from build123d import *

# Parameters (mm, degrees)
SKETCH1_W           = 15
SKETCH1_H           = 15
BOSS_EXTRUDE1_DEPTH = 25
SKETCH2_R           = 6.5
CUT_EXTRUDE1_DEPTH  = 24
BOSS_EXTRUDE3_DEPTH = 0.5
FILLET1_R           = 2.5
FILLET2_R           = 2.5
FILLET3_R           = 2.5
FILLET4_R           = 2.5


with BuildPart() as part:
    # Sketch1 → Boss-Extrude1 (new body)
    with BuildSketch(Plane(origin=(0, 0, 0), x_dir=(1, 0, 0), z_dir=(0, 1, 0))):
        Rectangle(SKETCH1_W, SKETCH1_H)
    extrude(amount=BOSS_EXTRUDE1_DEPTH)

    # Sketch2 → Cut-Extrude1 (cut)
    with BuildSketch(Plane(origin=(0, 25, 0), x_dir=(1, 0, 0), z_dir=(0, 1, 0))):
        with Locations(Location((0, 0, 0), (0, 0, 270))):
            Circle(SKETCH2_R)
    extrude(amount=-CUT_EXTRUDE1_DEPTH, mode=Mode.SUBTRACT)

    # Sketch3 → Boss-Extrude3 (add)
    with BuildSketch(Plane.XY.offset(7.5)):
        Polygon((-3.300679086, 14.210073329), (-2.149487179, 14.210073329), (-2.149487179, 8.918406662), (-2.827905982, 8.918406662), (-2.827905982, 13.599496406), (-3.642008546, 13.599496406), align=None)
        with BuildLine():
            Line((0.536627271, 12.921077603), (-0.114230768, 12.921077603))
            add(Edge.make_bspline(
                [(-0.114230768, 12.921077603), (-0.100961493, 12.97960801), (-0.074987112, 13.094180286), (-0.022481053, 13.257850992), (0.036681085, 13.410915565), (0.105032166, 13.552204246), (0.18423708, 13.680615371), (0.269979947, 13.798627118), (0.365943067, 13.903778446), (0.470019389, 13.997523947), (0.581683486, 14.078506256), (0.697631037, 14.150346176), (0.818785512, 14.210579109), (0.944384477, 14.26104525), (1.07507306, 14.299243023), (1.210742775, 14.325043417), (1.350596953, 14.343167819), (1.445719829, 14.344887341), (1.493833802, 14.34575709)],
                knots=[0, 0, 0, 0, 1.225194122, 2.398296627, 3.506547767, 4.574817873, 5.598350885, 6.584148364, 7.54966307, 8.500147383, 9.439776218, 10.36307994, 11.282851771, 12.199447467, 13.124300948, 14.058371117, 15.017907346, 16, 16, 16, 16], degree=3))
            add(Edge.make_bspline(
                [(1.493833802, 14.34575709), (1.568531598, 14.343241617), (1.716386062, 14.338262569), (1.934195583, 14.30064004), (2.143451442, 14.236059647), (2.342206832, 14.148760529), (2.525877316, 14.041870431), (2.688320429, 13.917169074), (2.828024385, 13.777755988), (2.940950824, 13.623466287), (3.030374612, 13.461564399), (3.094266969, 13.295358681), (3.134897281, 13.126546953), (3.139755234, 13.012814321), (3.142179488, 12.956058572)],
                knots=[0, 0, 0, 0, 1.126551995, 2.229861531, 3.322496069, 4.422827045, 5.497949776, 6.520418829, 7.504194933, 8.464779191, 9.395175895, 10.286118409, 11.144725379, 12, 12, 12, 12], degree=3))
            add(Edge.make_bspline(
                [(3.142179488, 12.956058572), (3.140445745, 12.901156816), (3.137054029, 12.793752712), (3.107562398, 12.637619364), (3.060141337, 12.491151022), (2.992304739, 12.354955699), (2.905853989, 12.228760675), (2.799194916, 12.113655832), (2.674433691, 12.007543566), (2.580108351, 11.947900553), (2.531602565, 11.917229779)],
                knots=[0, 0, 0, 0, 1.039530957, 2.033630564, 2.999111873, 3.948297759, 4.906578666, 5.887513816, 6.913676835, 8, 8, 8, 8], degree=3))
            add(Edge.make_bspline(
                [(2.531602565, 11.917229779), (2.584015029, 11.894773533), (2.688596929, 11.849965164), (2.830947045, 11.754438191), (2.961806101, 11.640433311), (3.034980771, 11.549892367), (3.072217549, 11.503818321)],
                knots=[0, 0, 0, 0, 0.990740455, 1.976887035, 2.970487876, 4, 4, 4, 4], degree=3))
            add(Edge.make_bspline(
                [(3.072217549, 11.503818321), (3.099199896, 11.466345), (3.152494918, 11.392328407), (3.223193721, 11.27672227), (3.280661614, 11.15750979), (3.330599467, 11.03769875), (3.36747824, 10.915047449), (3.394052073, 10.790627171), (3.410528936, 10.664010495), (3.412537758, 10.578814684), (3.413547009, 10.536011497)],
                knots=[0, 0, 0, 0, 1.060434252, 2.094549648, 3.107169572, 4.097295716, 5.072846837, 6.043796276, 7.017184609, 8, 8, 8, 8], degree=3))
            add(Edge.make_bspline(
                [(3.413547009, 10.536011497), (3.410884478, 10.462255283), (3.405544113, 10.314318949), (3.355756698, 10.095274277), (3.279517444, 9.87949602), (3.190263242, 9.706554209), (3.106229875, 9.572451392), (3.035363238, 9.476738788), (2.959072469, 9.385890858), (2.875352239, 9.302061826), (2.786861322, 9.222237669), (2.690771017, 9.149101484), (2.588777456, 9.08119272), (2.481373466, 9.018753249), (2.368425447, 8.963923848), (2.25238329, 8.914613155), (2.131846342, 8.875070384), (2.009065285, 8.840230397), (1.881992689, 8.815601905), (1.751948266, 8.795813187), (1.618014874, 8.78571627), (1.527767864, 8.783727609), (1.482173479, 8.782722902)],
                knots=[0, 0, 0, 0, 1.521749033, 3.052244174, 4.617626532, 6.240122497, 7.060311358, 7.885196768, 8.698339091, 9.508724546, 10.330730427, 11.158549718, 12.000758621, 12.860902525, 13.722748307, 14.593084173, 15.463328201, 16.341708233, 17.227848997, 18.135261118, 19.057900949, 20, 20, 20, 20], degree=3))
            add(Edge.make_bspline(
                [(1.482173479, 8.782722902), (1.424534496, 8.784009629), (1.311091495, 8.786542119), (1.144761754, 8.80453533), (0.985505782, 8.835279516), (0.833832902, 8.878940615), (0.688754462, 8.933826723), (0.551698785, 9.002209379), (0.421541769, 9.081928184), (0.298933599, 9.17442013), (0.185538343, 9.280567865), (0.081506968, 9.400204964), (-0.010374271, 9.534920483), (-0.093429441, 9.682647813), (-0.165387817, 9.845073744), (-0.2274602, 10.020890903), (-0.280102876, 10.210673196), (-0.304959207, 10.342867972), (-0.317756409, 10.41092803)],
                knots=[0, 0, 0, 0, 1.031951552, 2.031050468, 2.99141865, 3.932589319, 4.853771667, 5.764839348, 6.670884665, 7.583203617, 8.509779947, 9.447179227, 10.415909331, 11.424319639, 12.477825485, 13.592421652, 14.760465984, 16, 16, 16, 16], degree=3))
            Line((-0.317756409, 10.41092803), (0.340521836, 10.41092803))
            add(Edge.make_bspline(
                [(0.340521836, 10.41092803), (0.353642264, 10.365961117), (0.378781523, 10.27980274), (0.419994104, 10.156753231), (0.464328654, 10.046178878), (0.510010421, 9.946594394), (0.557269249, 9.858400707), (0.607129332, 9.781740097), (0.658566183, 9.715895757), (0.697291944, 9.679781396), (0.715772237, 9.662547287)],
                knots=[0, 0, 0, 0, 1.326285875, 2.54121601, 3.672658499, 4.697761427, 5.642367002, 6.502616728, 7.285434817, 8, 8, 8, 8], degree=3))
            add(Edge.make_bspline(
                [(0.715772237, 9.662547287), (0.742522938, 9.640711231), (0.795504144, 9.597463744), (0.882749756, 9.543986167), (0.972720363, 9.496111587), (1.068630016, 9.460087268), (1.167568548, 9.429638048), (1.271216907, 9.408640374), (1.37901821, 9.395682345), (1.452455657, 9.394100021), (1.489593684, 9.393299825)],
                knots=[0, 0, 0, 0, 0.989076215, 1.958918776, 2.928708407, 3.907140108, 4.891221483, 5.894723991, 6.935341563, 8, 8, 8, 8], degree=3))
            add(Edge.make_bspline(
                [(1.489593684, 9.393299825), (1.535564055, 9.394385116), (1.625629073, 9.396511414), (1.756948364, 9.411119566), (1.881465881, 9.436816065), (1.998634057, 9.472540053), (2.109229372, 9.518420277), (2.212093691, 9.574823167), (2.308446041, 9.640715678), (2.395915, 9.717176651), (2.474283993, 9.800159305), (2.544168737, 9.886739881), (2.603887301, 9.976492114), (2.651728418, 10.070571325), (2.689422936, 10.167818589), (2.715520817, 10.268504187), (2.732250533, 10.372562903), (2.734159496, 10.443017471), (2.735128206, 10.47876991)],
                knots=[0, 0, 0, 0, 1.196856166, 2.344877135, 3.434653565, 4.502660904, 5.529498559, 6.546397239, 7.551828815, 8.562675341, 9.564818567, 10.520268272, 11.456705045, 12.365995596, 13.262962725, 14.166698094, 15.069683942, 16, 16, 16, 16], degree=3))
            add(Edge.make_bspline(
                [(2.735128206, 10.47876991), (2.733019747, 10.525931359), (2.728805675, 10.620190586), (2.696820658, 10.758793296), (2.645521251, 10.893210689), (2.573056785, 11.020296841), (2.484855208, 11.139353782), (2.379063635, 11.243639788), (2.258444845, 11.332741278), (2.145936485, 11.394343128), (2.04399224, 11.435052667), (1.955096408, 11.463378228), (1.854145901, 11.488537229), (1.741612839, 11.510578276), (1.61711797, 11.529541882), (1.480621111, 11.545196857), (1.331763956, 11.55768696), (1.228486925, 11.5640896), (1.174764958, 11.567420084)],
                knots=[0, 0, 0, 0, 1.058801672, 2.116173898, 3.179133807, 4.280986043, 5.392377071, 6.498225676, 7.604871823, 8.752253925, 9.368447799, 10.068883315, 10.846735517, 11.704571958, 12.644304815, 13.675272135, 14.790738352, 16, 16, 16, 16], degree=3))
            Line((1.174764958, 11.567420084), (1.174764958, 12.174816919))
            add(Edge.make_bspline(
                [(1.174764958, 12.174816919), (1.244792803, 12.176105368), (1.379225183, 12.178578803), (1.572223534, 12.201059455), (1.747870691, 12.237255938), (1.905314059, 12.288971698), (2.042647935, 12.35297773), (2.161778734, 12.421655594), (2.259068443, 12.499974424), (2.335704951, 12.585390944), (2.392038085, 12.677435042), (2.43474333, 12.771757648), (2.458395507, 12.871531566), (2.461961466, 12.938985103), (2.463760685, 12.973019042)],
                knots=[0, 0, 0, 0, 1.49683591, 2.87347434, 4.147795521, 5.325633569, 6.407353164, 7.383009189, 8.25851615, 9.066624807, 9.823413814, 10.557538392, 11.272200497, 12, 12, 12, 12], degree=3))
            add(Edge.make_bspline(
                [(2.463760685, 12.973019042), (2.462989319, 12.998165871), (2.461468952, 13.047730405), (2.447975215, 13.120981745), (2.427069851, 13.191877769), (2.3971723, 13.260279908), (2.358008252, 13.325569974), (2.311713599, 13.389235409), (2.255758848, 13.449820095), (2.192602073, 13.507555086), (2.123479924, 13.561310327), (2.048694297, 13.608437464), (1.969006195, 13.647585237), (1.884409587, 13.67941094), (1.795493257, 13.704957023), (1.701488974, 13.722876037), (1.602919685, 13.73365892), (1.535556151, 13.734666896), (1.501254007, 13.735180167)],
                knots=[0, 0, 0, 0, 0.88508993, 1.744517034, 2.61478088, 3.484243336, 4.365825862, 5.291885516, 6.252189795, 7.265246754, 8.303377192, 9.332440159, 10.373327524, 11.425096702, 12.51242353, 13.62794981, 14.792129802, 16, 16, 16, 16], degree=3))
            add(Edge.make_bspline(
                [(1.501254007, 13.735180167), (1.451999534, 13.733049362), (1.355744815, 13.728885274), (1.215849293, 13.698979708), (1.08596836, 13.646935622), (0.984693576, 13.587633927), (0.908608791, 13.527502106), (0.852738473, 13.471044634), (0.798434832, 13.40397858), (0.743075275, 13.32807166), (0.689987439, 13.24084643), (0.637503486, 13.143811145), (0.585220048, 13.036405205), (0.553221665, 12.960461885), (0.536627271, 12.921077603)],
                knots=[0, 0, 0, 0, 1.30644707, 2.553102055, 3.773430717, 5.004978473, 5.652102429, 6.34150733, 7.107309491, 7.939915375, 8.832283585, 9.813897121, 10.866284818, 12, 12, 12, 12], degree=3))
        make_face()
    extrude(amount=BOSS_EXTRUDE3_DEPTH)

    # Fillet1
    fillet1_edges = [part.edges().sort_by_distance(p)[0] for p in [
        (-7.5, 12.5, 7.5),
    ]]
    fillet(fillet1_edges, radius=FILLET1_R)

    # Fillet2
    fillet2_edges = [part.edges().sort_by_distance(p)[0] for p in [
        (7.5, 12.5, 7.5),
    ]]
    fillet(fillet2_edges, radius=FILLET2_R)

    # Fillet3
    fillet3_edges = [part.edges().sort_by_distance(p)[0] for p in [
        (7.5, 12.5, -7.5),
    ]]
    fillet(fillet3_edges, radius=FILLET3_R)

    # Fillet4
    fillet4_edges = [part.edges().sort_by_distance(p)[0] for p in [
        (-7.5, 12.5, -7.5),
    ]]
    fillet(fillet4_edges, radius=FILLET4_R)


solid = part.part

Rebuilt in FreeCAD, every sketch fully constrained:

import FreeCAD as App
import Part
import Sketcher


def edges_at(feature, points):
    """Names of the edges that pass closest to the given points."""
    edges = feature.Shape.Edges
    near = lambda p: min(range(len(edges)), key=lambda i: edges[i].distToShape(Part.Vertex(*p))[0])
    return sorted({f"Edge{near(p) + 1}" for p in points})


def add_polygon(sketch, points):
    """Adds a closed chain of lines whose ends are joined by coincident constraints."""
    first, n = sketch.GeometryCount, len(points)
    for a, b in zip(points, points[1:] + points[:1]):
        sketch.addGeometry(Part.LineSegment(App.Vector(*a, 0), App.Vector(*b, 0)), False)
    for i in range(n):
        sketch.addConstraint(Sketcher.Constraint("Coincident", first + i, 2, first + (i + 1) % n, 1))

doc = App.newDocument("Part")
params = doc.addObject("Spreadsheet::Sheet", "Params")
for row, (alias, value) in enumerate([
    ("sketch1_width", "15 mm"),
    ("pad1_length", "25 mm"),
    ("sketch2_diameter", "13 mm"),
    ("pocket1_length", "24 mm"),
    ("pad2_length", "0.5 mm"),
    ("fillet_radius", "2.5 mm"),
    ("fillet2_radius", "2.5 mm"),
    ("fillet3_radius", "2.5 mm"),
    ("fillet4_radius", "2.5 mm"),
], start=1):
    params.set(f"A{row}", alias)
    params.set(f"B{row}", "=" + value)
    params.setAlias(f"B{row}", alias)

body = doc.addObject("PartDesign::Body", "Body")

# Sketch on XZ plane
sketch1 = body.newObject("Sketcher::SketchObject", "Sketch")
sketch1.AttachmentSupport = (doc.getObject("XZ_Plane"), [""])
sketch1.MapMode = "FlatFace"
add_polygon(sketch1, [(-8, -8), (-8, 8), (8, 8), (8, -8)])  # lines 0-3
sketch1.addConstraint(Sketcher.Constraint("Vertical", 0))
sketch1.addConstraint(Sketcher.Constraint("Horizontal", 1))
sketch1.addConstraint(Sketcher.Constraint("Vertical", 2))
sketch1.addConstraint(Sketcher.Constraint("Horizontal", 3))
sketch1.addConstraint(Sketcher.Constraint("Symmetric", 0, 2, 2, 2, -1, 1))
sketch1.addConstraint(Sketcher.Constraint("Equal", 3, 0))
sketch1.addConstraint(Sketcher.Constraint("DistanceX", 1, 1, 1, 2, 15.0))
sketch1.setExpression("Constraints[10]", "Params.sketch1_width")
pad1 = body.newObject("PartDesign::Pad", "Pad")
pad1.Profile = sketch1
pad1.setExpression("Length", "Params.pad1_length")
pad1.Reversed = True

# Sketch on XZ plane
sketch2 = body.newObject("Sketcher::SketchObject", "Sketch001")
sketch2.AttachmentSupport = (doc.getObject("XZ_Plane"), [""])
sketch2.MapMode = "FlatFace"
sketch2.AttachmentOffset = App.Placement(App.Vector(0, 0, -25), App.Rotation())
sketch2.addGeometry(Part.Circle(App.Vector(0, 0, 0), App.Vector(0, 0, 1), 6), False)
sketch2.addConstraint(Sketcher.Constraint("Coincident", 0, 3, -1, 1))
sketch2.addConstraint(Sketcher.Constraint("Diameter", 0, 13.0))
sketch2.setExpression("Constraints[1]", "Params.sketch2_diameter")
pocket1 = body.newObject("PartDesign::Pocket", "Pocket")
pocket1.Profile = sketch2
pocket1.setExpression("Length", "Params.pocket1_length")
pocket1.Reversed = True

# Sketch on XY plane
sketch3 = body.newObject("Sketcher::SketchObject", "Sketch002")
sketch3.AttachmentSupport = (doc.getObject("XY_Plane"), [""])
sketch3.MapMode = "FlatFace"
sketch3.AttachmentOffset = App.Placement(App.Vector(0, 0, 7.5), App.Rotation())
add_polygon(sketch3, [(-2.149487, 14.210073), (-3.300679, 14.210073), (-3.642009, 13.599496), (-2.827906, 13.599496), (-2.827906, 8.918407), (-2.149487, 8.918407)])  # lines 0-5
sketch3.addGeometry(Part.LineSegment(App.Vector(-0.114231, 12.921078, 0), App.Vector(0.536627, 12.921078, 0)), False)  # 6
sketch3.addGeometry(Part.BSplineCurve([App.Vector(1.501254, 13.73518, 0), App.Vector(1.452, 13.733049, 0), App.Vector(1.355745, 13.728885, 0), App.Vector(1.215849, 13.69898, 0), App.Vector(1.085968, 13.646936, 0), App.Vector(0.984694, 13.587634, 0), App.Vector(0.908609, 13.527502, 0), App.Vector(0.852738, 13.471045, 0), App.Vector(0.798435, 13.403979, 0), App.Vector(0.743075, 13.328072, 0), App.Vector(0.689987, 13.240846, 0), App.Vector(0.637503, 13.143811, 0), App.Vector(0.58522, 13.036405, 0), App.Vector(0.553222, 12.960462, 0), App.Vector(0.536627, 12.921078, 0)], [4, 1, 1, 1, 1, 1, 1, 1, 1, 1, 1, 1, 4], [0, 1.30644707, 2.553102055, 3.773430717, 5.004978473, 5.652102429, 6.34150733, 7.107309491, 7.939915375, 8.832283585, 9.813897121, 10.866284818, 12], False, 3, [1, 1, 1, 1, 1, 1, 1, 1, 1, 1, 1, 1, 1, 1, 1], False), False)  # 7
sketch3.addGeometry(Part.BSplineCurve([App.Vector(2.463761, 12.973019, 0), App.Vector(2.462989, 12.998166, 0), App.Vector(2.461469, 13.04773, 0), App.Vector(2.447975, 13.120982, 0), App.Vector(2.42707, 13.191878, 0), App.Vector(2.397172, 13.26028, 0), App.Vector(2.358008, 13.32557, 0), App.Vector(2.311714, 13.389235, 0), App.Vector(2.255759, 13.44982, 0), App.Vector(2.192602, 13.507555, 0), App.Vector(2.12348, 13.56131, 0), App.Vector(2.048694, 13.608437, 0), App.Vector(1.969006, 13.647585, 0), App.Vector(1.88441, 13.679411, 0), App.Vector(1.795493, 13.704957, 0), App.Vector(1.701489, 13.722876, 0), App.Vector(1.60292, 13.733659, 0), App.Vector(1.535556, 13.734667, 0), App.Vector(1.501254, 13.73518, 0)], [4, 1, 1, 1, 1, 1, 1, 1, 1, 1, 1, 1, 1, 1, 1, 1, 4], [0, 0.88508993, 1.744517034, 2.61478088, 3.484243336, 4.365825862, 5.291885516, 6.252189795, 7.265246754, 8.303377192, 9.332440159, 10.373327524, 11.425096702, 12.51242353, 13.62794981, 14.792129802, 16], False, 3, [1, 1, 1, 1, 1, 1, 1, 1, 1, 1, 1, 1, 1, 1, 1, 1, 1, 1, 1], False), False)  # 8
sketch3.addGeometry(Part.BSplineCurve([App.Vector(1.174765, 12.174817, 0), App.Vector(1.244793, 12.176105, 0), App.Vector(1.379225, 12.178579, 0), App.Vector(1.572224, 12.201059, 0), App.Vector(1.747871, 12.237256, 0), App.Vector(1.905314, 12.288972, 0), App.Vector(2.042648, 12.352978, 0), App.Vector(2.161779, 12.421656, 0), App.Vector(2.259068, 12.499974, 0), App.Vector(2.335705, 12.585391, 0), App.Vector(2.392038, 12.677435, 0), App.Vector(2.434743, 12.771758, 0), App.Vector(2.458396, 12.871532, 0), App.Vector(2.461961, 12.938985, 0), App.Vector(2.463761, 12.973019, 0)], [4, 1, 1, 1, 1, 1, 1, 1, 1, 1, 1, 1, 4], [0, 1.49683591, 2.87347434, 4.147795521, 5.325633569, 6.407353164, 7.383009189, 8.25851615, 9.066624807, 9.823413814, 10.557538392, 11.272200497, 12], False, 3, [1, 1, 1, 1, 1, 1, 1, 1, 1, 1, 1, 1, 1, 1, 1], False), False)  # 9
sketch3.addGeometry(Part.LineSegment(App.Vector(1.174765, 12.174817, 0), App.Vector(1.174765, 11.56742, 0)), False)  # 10
sketch3.addGeometry(Part.BSplineCurve([App.Vector(2.735128, 10.47877, 0), App.Vector(2.73302, 10.525931, 0), App.Vector(2.728806, 10.620191, 0), App.Vector(2.696821, 10.758793, 0), App.Vector(2.645521, 10.893211, 0), App.Vector(2.573057, 11.020297, 0), App.Vector(2.484855, 11.139354, 0), App.Vector(2.379064, 11.24364, 0), App.Vector(2.258445, 11.332741, 0), App.Vector(2.145936, 11.394343, 0), App.Vector(2.043992, 11.435053, 0), App.Vector(1.955096, 11.463378, 0), App.Vector(1.854146, 11.488537, 0), App.Vector(1.741613, 11.510578, 0), App.Vector(1.617118, 11.529542, 0), App.Vector(1.480621, 11.545197, 0), App.Vector(1.331764, 11.557687, 0), App.Vector(1.228487, 11.56409, 0), App.Vector(1.174765, 11.56742, 0)], [4, 1, 1, 1, 1, 1, 1, 1, 1, 1, 1, 1, 1, 1, 1, 1, 4], [0, 1.058801672, 2.116173898, 3.179133807, 4.280986043, 5.392377071, 6.498225676, 7.604871823, 8.752253925, 9.368447799, 10.068883315, 10.846735517, 11.704571958, 12.644304815, 13.675272135, 14.790738352, 16], False, 3, [1, 1, 1, 1, 1, 1, 1, 1, 1, 1, 1, 1, 1, 1, 1, 1, 1, 1, 1], False), False)  # 11
sketch3.addGeometry(Part.BSplineCurve([App.Vector(1.489594, 9.3933, 0), App.Vector(1.535564, 9.394385, 0), App.Vector(1.625629, 9.396511, 0), App.Vector(1.756948, 9.41112, 0), App.Vector(1.881466, 9.436816, 0), App.Vector(1.998634, 9.47254, 0), App.Vector(2.109229, 9.51842, 0), App.Vector(2.212094, 9.574823, 0), App.Vector(2.308446, 9.640716, 0), App.Vector(2.395915, 9.717177, 0), App.Vector(2.474284, 9.800159, 0), App.Vector(2.544169, 9.88674, 0), App.Vector(2.603887, 9.976492, 0), App.Vector(2.651728, 10.070571, 0), App.Vector(2.689423, 10.167819, 0), App.Vector(2.715521, 10.268504, 0), App.Vector(2.732251, 10.372563, 0), App.Vector(2.734159, 10.443017, 0), App.Vector(2.735128, 10.47877, 0)], [4, 1, 1, 1, 1, 1, 1, 1, 1, 1, 1, 1, 1, 1, 1, 1, 4], [0, 1.196856166, 2.344877135, 3.434653565, 4.502660904, 5.529498559, 6.546397239, 7.551828815, 8.562675341, 9.564818567, 10.520268272, 11.456705045, 12.365995596, 13.262962725, 14.166698094, 15.069683942, 16], False, 3, [1, 1, 1, 1, 1, 1, 1, 1, 1, 1, 1, 1, 1, 1, 1, 1, 1, 1, 1], False), False)  # 12
sketch3.addGeometry(Part.BSplineCurve([App.Vector(0.715772, 9.662547, 0), App.Vector(0.742523, 9.640711, 0), App.Vector(0.795504, 9.597464, 0), App.Vector(0.88275, 9.543986, 0), App.Vector(0.97272, 9.496112, 0), App.Vector(1.06863, 9.460087, 0), App.Vector(1.167569, 9.429638, 0), App.Vector(1.271217, 9.40864, 0), App.Vector(1.379018, 9.395682, 0), App.Vector(1.452456, 9.3941, 0), App.Vector(1.489594, 9.3933, 0)], [4, 1, 1, 1, 1, 1, 1, 1, 4], [0, 0.989076215, 1.958918776, 2.928708407, 3.907140108, 4.891221483, 5.894723991, 6.935341563, 8], False, 3, [1, 1, 1, 1, 1, 1, 1, 1, 1, 1, 1], False), False)  # 13
sketch3.addGeometry(Part.BSplineCurve([App.Vector(0.340522, 10.410928, 0), App.Vector(0.353642, 10.365961, 0), App.Vector(0.378782, 10.279803, 0), App.Vector(0.419994, 10.156753, 0), App.Vector(0.464329, 10.046179, 0), App.Vector(0.51001, 9.946594, 0), App.Vector(0.557269, 9.858401, 0), App.Vector(0.607129, 9.78174, 0), App.Vector(0.658566, 9.715896, 0), App.Vector(0.697292, 9.679781, 0), App.Vector(0.715772, 9.662547, 0)], [4, 1, 1, 1, 1, 1, 1, 1, 4], [0, 1.326285875, 2.54121601, 3.672658499, 4.697761427, 5.642367002, 6.502616728, 7.285434817, 8], False, 3, [1, 1, 1, 1, 1, 1, 1, 1, 1, 1, 1], False), False)  # 14
sketch3.addGeometry(Part.LineSegment(App.Vector(0.340522, 10.410928, 0), App.Vector(-0.317756, 10.410928, 0)), False)  # 15
sketch3.addGeometry(Part.BSplineCurve([App.Vector(1.482173, 8.782723, 0), App.Vector(1.424534, 8.78401, 0), App.Vector(1.311091, 8.786542, 0), App.Vector(1.144762, 8.804535, 0), App.Vector(0.985506, 8.83528, 0), App.Vector(0.833833, 8.878941, 0), App.Vector(0.688754, 8.933827, 0), App.Vector(0.551699, 9.002209, 0), App.Vector(0.421542, 9.081928, 0), App.Vector(0.298934, 9.17442, 0), App.Vector(0.185538, 9.280568, 0), App.Vector(0.081507, 9.400205, 0), App.Vector(-0.010374, 9.53492, 0), App.Vector(-0.093429, 9.682648, 0), App.Vector(-0.165388, 9.845074, 0), App.Vector(-0.22746, 10.020891, 0), App.Vector(-0.280103, 10.210673, 0), App.Vector(-0.304959, 10.342868, 0), App.Vector(-0.317756, 10.410928, 0)], [4, 1, 1, 1, 1, 1, 1, 1, 1, 1, 1, 1, 1, 1, 1, 1, 4], [0, 1.031951552, 2.031050468, 2.99141865, 3.932589319, 4.853771667, 5.764839348, 6.670884665, 7.583203617, 8.509779947, 9.447179227, 10.415909331, 11.424319639, 12.477825485, 13.592421652, 14.760465984, 16], False, 3, [1, 1, 1, 1, 1, 1, 1, 1, 1, 1, 1, 1, 1, 1, 1, 1, 1, 1, 1], False), False)  # 16
sketch3.addGeometry(Part.BSplineCurve([App.Vector(3.413547, 10.536011, 0), App.Vector(3.410884, 10.462255, 0), App.Vector(3.405544, 10.314319, 0), App.Vector(3.355757, 10.095274, 0), App.Vector(3.279517, 9.879496, 0), App.Vector(3.190263, 9.706554, 0), App.Vector(3.10623, 9.572451, 0), App.Vector(3.035363, 9.476739, 0), App.Vector(2.959072, 9.385891, 0), App.Vector(2.875352, 9.302062, 0), App.Vector(2.786861, 9.222238, 0), App.Vector(2.690771, 9.149101, 0), App.Vector(2.588777, 9.081193, 0), App.Vector(2.481373, 9.018753, 0), App.Vector(2.368425, 8.963924, 0), App.Vector(2.252383, 8.914613, 0), App.Vector(2.131846, 8.87507, 0), App.Vector(2.009065, 8.84023, 0), App.Vector(1.881993, 8.815602, 0), App.Vector(1.751948, 8.795813, 0), App.Vector(1.618015, 8.785716, 0), App.Vector(1.527768, 8.783728, 0), App.Vector(1.482173, 8.782723, 0)], [4, 1, 1, 1, 1, 1, 1, 1, 1, 1, 1, 1, 1, 1, 1, 1, 1, 1, 1, 1, 4], [0, 1.521749033, 3.052244174, 4.617626532, 6.240122497, 7.060311358, 7.885196768, 8.698339091, 9.508724546, 10.330730427, 11.158549718, 12.000758621, 12.860902525, 13.722748307, 14.593084173, 15.463328201, 16.341708233, 17.227848997, 18.135261118, 19.057900949, 20], False, 3, [1, 1, 1, 1, 1, 1, 1, 1, 1, 1, 1, 1, 1, 1, 1, 1, 1, 1, 1, 1, 1, 1, 1], False), False)  # 17
sketch3.addGeometry(Part.BSplineCurve([App.Vector(3.072218, 11.503818, 0), App.Vector(3.0992, 11.466345, 0), App.Vector(3.152495, 11.392328, 0), App.Vector(3.223194, 11.276722, 0), App.Vector(3.280662, 11.15751, 0), App.Vector(3.330599, 11.037699, 0), App.Vector(3.367478, 10.915047, 0), App.Vector(3.394052, 10.790627, 0), App.Vector(3.410529, 10.66401, 0), App.Vector(3.412538, 10.578815, 0), App.Vector(3.413547, 10.536011, 0)], [4, 1, 1, 1, 1, 1, 1, 1, 4], [0, 1.060434252, 2.094549648, 3.107169572, 4.097295716, 5.072846837, 6.043796276, 7.017184609, 8], False, 3, [1, 1, 1, 1, 1, 1, 1, 1, 1, 1, 1], False), False)  # 18
sketch3.addGeometry(Part.BSplineCurve([App.Vector(2.531603, 11.91723, 0), App.Vector(2.584015, 11.894774, 0), App.Vector(2.688597, 11.849965, 0), App.Vector(2.830947, 11.754438, 0), App.Vector(2.961806, 11.640433, 0), App.Vector(3.034981, 11.549892, 0), App.Vector(3.072218, 11.503818, 0)], [4, 1, 1, 1, 4], [0, 0.990740455, 1.976887035, 2.970487876, 4], False, 3, [1, 1, 1, 1, 1, 1, 1], False), False)  # 19
sketch3.addGeometry(Part.BSplineCurve([App.Vector(3.142179, 12.956059, 0), App.Vector(3.140446, 12.901157, 0), App.Vector(3.137054, 12.793753, 0), App.Vector(3.107562, 12.637619, 0), App.Vector(3.060141, 12.491151, 0), App.Vector(2.992305, 12.354956, 0), App.Vector(2.905854, 12.228761, 0), App.Vector(2.799195, 12.113656, 0), App.Vector(2.674434, 12.007544, 0), App.Vector(2.580108, 11.947901, 0), App.Vector(2.531603, 11.91723, 0)], [4, 1, 1, 1, 1, 1, 1, 1, 4], [0, 1.039530957, 2.033630564, 2.999111873, 3.948297759, 4.906578666, 5.887513816, 6.913676835, 8], False, 3, [1, 1, 1, 1, 1, 1, 1, 1, 1, 1, 1], False), False)  # 20
sketch3.addGeometry(Part.BSplineCurve([App.Vector(1.493834, 14.345757, 0), App.Vector(1.568532, 14.343242, 0), App.Vector(1.716386, 14.338263, 0), App.Vector(1.934196, 14.30064, 0), App.Vector(2.143451, 14.23606, 0), App.Vector(2.342207, 14.148761, 0), App.Vector(2.525877, 14.04187, 0), App.Vector(2.68832, 13.917169, 0), App.Vector(2.828024, 13.777756, 0), App.Vector(2.940951, 13.623466, 0), App.Vector(3.030375, 13.461564, 0), App.Vector(3.094267, 13.295359, 0), App.Vector(3.134897, 13.126547, 0), App.Vector(3.139755, 13.012814, 0), App.Vector(3.142179, 12.956059, 0)], [4, 1, 1, 1, 1, 1, 1, 1, 1, 1, 1, 1, 4], [0, 1.126551995, 2.229861531, 3.322496069, 4.422827045, 5.497949776, 6.520418829, 7.504194933, 8.464779191, 9.395175895, 10.286118409, 11.144725379, 12], False, 3, [1, 1, 1, 1, 1, 1, 1, 1, 1, 1, 1, 1, 1, 1, 1], False), False)  # 21
sketch3.addGeometry(Part.BSplineCurve([App.Vector(-0.114231, 12.921078, 0), App.Vector(-0.100961, 12.979608, 0), App.Vector(-0.074987, 13.09418, 0), App.Vector(-0.022481, 13.257851, 0), App.Vector(0.036681, 13.410916, 0), App.Vector(0.105032, 13.552204, 0), App.Vector(0.184237, 13.680615, 0), App.Vector(0.26998, 13.798627, 0), App.Vector(0.365943, 13.903778, 0), App.Vector(0.470019, 13.997524, 0), App.Vector(0.581683, 14.078506, 0), App.Vector(0.697631, 14.150346, 0), App.Vector(0.818786, 14.210579, 0), App.Vector(0.944384, 14.261045, 0), App.Vector(1.075073, 14.299243, 0), App.Vector(1.210743, 14.325043, 0), App.Vector(1.350597, 14.343168, 0), App.Vector(1.44572, 14.344887, 0), App.Vector(1.493834, 14.345757, 0)], [4, 1, 1, 1, 1, 1, 1, 1, 1, 1, 1, 1, 1, 1, 1, 1, 4], [0, 1.225194122, 2.398296627, 3.506547767, 4.574817873, 5.598350885, 6.584148364, 7.54966307, 8.500147383, 9.439776218, 10.36307994, 11.282851771, 12.199447467, 13.124300948, 14.058371117, 15.017907346, 16], False, 3, [1, 1, 1, 1, 1, 1, 1, 1, 1, 1, 1, 1, 1, 1, 1, 1, 1, 1, 1], False), False)  # 22
sketch3.addConstraint(Sketcher.Constraint("Block", 7))
sketch3.addConstraint(Sketcher.Constraint("Block", 8))
sketch3.addConstraint(Sketcher.Constraint("Block", 9))
sketch3.addConstraint(Sketcher.Constraint("Block", 11))
sketch3.addConstraint(Sketcher.Constraint("Block", 12))
sketch3.addConstraint(Sketcher.Constraint("Block", 13))
sketch3.addConstraint(Sketcher.Constraint("Block", 14))
sketch3.addConstraint(Sketcher.Constraint("Block", 16))
sketch3.addConstraint(Sketcher.Constraint("Block", 17))
sketch3.addConstraint(Sketcher.Constraint("Block", 18))
sketch3.addConstraint(Sketcher.Constraint("Block", 19))
sketch3.addConstraint(Sketcher.Constraint("Block", 20))
sketch3.addConstraint(Sketcher.Constraint("Block", 21))
sketch3.addConstraint(Sketcher.Constraint("Block", 22))
sketch3.addConstraint(Sketcher.Constraint("Coincident", 6, 2, 7, 2))
sketch3.addConstraint(Sketcher.Constraint("Coincident", 9, 1, 10, 1))
sketch3.addConstraint(Sketcher.Constraint("Coincident", 10, 2, 11, 2))
sketch3.addConstraint(Sketcher.Constraint("Coincident", 14, 1, 15, 1))
sketch3.addConstraint(Sketcher.Constraint("Coincident", 15, 2, 16, 2))
sketch3.addConstraint(Sketcher.Constraint("Coincident", 22, 1, 6, 1))
sketch3.addConstraint(Sketcher.Constraint("Horizontal", 0))
sketch3.addConstraint(Sketcher.Constraint("Horizontal", 2))
sketch3.addConstraint(Sketcher.Constraint("Vertical", 3))
sketch3.addConstraint(Sketcher.Constraint("Horizontal", 4))
sketch3.addConstraint(Sketcher.Constraint("Vertical", 5))
sketch3.addConstraint(Sketcher.Constraint("DistanceX", 0, 2, 0, 1, 1.151192))
sketch3.addConstraint(Sketcher.Constraint("DistanceX", 4, 1, 4, 2, 0.678419))
sketch3.addConstraint(Sketcher.Constraint("DistanceY", 3, 2, 3, 1, 4.68109))
sketch3.addConstraint(Sketcher.Constraint("DistanceX", 2, 1, 2, 2, 0.814103))
sketch3.addConstraint(Sketcher.Constraint("DistanceY", 5, 1, 5, 2, 5.291667))
sketch3.addConstraint(Sketcher.Constraint("DistanceX", 0, 2, -1, 1, 3.300679))
sketch3.addConstraint(Sketcher.Constraint("DistanceY", 6, 2, 2, 2, 0.678419))
pad2 = body.newObject("PartDesign::Pad", "Pad001")
pad2.Profile = sketch3
pad2.setExpression("Length", "Params.pad2_length")
doc.recompute()

fillet = body.newObject("PartDesign::Fillet", "Fillet")
fillet.Base = (pad2, edges_at(pad2, [(-7.5, 12.5, 7.5)]))
fillet.setExpression("Radius", "Params.fillet_radius")
doc.recompute()

fillet2 = body.newObject("PartDesign::Fillet", "Fillet001")
fillet2.Base = (fillet, edges_at(fillet, [(7.5, 12.5, 7.5)]))
fillet2.setExpression("Radius", "Params.fillet2_radius")
doc.recompute()

fillet3 = body.newObject("PartDesign::Fillet", "Fillet002")
fillet3.Base = (fillet2, edges_at(fillet2, [(7.5, 12.5, -7.5)]))
fillet3.setExpression("Radius", "Params.fillet3_radius")
doc.recompute()

fillet4 = body.newObject("PartDesign::Fillet", "Fillet003")
fillet4.Base = (fillet3, edges_at(fillet3, [(-7.5, 12.5, -7.5)]))
fillet4.setExpression("Radius", "Params.fillet4_radius")

doc.recompute()
